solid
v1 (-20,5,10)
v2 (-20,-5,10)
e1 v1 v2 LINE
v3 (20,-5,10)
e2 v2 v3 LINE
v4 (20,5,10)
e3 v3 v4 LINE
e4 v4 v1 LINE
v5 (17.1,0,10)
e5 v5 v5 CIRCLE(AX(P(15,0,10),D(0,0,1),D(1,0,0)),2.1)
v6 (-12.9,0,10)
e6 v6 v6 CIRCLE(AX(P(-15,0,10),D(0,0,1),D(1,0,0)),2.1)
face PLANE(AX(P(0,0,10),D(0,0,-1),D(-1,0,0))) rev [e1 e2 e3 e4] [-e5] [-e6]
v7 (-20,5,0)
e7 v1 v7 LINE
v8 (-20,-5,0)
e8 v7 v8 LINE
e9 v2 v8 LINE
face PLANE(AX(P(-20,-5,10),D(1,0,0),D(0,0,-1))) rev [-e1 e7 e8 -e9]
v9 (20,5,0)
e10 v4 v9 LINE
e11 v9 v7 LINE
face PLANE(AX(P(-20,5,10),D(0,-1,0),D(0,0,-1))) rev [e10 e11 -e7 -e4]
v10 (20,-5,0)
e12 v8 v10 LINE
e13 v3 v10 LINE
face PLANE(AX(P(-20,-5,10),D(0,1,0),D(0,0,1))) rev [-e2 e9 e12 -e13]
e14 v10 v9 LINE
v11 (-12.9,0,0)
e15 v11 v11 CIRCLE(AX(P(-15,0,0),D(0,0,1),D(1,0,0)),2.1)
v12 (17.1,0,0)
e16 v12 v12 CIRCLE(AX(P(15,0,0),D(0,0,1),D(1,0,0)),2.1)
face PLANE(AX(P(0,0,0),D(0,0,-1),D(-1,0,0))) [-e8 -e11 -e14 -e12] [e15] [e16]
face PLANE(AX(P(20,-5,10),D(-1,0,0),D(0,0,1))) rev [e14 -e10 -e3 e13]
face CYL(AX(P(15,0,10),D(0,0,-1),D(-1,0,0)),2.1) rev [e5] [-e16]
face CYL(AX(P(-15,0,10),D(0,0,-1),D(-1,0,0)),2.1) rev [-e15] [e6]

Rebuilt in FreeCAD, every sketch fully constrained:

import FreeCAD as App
import Part
import Sketcher
Q = App.Units.Quantity


def add_polygon(sketch, points):
    """Adds a closed chain of lines whose ends are joined by coincident constraints."""
    first, n = sketch.GeometryCount, len(points)
    for a, b in zip(points, points[1:] + points[:1]):
        sketch.addGeometry(Part.LineSegment(App.Vector(*a, 0), App.Vector(*b, 0)), False)
    for i in range(n):
        sketch.addConstraint(Sketcher.Constraint("Coincident", first + i, 2, first + (i + 1) % n, 1))

doc = App.newDocument("Part")
body = doc.addObject("PartDesign::Body", "Body")

sketch1 = doc.addObject("Sketcher::SketchObject", "Sketch")
body.addObject(sketch1)
sketch1.AttachmentSupport = (doc.XY_Plane, [""])
sketch1.MapMode = "FlatFace"
add_polygon(sketch1, [(-20, 5), (-20, -5), (20, -5), (20, 5)])
sketch1.addGeometry(Part.Circle(App.Vector(-15, 0, 0), App.Vector(0, 0, 1), 2.1), False)
sketch1.addGeometry(Part.Circle(App.Vector(15, 0, 0), App.Vector(0, 0, 1), 2.1), False)
sketch1.addConstraint([
    Sketcher.Constraint("Vertical", 0),
    Sketcher.Constraint("Horizontal", 1),
    Sketcher.Constraint("Vertical", 2),
    Sketcher.Constraint("Horizontal", 3),
    Sketcher.Constraint("Equal", 4, 5),
    Sketcher.Constraint("Symmetric", 4, 3, 5, 3, -1, 1),
    Sketcher.Constraint("Symmetric", 0, 2, 2, 2, -1, 1),
    Sketcher.Constraint("PointOnObject", 4, 3, -1),
    Sketcher.Constraint("Diameter", 4, Q("4.2 mm")),
    Sketcher.Constraint("DistanceX", 1, 1, 1, 2, Q("40 mm")),
    Sketcher.Constraint("DistanceY", 0, 2, 0, 1, Q("10 mm")),
    Sketcher.Constraint("DistanceX", 4, 3, -1, 1, Q("15 mm")),
])
pad1 = doc.addObject("PartDesign::Pad", "Pad")
body.addObject(pad1)
pad1.Profile = sketch1
pad1.Length = 10

doc.recompute()
